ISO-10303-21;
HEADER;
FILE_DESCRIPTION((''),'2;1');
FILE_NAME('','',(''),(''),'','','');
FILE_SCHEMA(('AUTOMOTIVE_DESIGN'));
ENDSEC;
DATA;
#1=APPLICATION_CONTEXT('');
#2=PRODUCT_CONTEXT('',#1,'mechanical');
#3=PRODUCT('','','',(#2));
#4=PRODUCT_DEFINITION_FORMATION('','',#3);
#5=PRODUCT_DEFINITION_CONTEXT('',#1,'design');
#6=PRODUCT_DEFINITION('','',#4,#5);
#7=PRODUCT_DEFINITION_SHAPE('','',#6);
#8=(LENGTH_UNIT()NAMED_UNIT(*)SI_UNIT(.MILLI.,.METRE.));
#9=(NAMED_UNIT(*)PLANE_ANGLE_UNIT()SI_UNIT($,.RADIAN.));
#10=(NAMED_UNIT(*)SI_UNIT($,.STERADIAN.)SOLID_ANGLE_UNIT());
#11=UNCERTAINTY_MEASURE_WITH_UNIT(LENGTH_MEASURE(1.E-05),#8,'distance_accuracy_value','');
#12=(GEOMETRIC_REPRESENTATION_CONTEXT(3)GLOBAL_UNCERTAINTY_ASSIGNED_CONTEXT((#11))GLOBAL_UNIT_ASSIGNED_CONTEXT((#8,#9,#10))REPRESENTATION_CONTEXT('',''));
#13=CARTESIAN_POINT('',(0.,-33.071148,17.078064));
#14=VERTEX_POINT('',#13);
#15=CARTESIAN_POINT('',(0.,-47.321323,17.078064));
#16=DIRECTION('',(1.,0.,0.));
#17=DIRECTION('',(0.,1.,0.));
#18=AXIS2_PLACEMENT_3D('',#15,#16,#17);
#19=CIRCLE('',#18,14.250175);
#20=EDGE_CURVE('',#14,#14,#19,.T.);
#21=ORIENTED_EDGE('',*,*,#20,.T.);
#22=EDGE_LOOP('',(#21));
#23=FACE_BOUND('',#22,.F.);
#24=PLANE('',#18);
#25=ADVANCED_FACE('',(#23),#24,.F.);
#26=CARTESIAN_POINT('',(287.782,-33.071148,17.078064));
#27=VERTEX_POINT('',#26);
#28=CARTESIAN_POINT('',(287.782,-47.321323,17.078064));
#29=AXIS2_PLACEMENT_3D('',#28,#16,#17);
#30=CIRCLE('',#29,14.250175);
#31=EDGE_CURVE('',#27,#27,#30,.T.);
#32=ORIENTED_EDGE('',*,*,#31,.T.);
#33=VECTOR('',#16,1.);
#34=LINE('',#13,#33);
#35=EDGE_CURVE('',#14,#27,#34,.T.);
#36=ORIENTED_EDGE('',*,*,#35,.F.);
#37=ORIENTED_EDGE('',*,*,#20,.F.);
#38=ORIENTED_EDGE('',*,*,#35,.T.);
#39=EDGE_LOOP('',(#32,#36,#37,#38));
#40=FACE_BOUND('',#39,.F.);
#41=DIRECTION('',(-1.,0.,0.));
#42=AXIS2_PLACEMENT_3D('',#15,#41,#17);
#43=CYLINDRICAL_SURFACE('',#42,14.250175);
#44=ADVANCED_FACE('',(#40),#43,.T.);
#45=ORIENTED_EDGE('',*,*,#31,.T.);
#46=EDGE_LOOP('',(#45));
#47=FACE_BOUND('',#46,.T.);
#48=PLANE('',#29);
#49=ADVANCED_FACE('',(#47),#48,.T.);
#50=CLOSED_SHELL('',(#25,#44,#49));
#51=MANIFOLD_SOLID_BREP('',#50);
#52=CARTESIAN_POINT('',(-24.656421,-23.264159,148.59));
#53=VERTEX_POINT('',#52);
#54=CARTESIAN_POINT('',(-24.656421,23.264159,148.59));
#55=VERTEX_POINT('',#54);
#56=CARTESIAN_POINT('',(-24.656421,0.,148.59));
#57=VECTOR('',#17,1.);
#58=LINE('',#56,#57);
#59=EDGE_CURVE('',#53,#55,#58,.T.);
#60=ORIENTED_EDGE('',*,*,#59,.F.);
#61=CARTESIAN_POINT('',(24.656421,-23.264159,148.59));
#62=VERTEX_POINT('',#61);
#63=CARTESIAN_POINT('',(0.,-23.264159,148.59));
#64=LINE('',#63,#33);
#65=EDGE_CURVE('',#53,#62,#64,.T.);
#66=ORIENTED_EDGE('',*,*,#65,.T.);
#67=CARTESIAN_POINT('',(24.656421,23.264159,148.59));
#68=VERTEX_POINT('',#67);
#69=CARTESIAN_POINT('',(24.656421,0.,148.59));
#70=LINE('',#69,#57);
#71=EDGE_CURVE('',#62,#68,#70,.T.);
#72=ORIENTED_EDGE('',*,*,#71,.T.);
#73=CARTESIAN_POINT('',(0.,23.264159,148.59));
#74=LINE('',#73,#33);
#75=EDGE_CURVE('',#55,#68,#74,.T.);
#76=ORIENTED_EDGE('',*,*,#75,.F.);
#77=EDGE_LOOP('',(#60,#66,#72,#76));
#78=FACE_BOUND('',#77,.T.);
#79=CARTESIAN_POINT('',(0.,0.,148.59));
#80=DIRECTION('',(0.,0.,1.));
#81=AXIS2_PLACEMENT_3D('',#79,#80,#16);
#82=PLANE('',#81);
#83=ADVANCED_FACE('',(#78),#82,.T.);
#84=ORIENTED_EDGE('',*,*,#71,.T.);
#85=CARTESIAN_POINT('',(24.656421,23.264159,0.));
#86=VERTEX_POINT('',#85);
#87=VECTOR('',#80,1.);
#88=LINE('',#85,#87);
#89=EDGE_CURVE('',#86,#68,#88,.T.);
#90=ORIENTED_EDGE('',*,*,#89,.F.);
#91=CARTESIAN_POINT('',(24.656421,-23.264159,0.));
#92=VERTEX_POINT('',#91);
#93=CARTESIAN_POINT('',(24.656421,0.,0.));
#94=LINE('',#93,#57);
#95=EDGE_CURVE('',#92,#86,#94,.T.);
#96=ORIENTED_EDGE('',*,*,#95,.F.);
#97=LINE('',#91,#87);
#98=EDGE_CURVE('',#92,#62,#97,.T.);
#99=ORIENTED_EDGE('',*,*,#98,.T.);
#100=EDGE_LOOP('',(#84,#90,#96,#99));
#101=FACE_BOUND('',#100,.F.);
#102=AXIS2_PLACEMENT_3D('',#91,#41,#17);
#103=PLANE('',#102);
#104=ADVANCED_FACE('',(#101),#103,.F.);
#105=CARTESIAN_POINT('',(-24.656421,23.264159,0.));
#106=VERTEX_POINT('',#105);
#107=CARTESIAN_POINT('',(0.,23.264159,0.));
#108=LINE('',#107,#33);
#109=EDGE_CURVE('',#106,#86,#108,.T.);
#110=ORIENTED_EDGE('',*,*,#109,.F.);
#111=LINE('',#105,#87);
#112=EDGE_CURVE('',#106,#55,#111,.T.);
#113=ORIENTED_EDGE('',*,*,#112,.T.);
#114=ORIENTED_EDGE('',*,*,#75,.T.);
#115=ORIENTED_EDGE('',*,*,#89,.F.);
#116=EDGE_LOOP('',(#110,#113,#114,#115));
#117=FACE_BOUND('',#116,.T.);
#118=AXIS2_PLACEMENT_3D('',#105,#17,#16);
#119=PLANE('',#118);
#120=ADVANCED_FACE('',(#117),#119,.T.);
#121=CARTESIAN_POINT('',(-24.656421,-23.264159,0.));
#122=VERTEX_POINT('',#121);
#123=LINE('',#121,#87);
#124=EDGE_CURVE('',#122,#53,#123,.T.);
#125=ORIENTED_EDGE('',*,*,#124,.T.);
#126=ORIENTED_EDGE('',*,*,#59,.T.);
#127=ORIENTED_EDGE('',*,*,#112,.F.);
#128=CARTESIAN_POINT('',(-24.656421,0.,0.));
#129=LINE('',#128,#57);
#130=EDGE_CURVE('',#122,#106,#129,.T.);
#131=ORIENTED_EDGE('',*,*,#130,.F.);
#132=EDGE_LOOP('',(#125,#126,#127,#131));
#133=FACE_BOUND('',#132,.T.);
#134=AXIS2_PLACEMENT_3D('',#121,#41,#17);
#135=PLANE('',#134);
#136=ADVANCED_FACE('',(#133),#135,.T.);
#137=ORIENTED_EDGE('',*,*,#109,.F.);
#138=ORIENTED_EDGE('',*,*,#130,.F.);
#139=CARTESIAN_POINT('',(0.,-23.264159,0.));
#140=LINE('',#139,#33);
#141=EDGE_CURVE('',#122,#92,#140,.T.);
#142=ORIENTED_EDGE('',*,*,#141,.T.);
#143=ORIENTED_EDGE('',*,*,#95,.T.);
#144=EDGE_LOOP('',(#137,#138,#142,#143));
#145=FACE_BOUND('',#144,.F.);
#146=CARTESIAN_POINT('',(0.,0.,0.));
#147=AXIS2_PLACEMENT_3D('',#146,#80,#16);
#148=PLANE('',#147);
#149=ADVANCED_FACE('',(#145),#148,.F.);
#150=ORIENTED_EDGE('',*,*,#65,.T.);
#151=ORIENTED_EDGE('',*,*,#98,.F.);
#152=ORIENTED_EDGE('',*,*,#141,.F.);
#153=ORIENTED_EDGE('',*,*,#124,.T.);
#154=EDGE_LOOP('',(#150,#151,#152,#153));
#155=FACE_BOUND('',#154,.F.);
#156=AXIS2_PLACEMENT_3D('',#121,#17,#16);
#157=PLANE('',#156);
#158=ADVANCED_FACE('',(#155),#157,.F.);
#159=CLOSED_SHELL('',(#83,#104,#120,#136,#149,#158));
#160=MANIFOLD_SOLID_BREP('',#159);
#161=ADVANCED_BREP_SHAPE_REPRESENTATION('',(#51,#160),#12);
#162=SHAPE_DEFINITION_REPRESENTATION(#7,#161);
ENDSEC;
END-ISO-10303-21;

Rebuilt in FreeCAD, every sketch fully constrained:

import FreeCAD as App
import Part
import Sketcher

V = App.Vector

doc = App.newDocument("Part")
params = doc.addObject("Spreadsheet::Sheet", "Params")
for row, (alias, value) in enumerate([
    ("pad1_length", "5.85 in"),
    ("pad2_length", "11.33 in"),
], start=1):
    params.set(f"A{row}", alias)
    params.set(f"B{row}", "=" + value)
    params.setAlias(f"B{row}", alias)

body = doc.addObject("PartDesign::Body", "Body")

# Sketch on XY plane
sketch1 = body.newObject("Sketcher::SketchObject", "Sketch")
sketch1.AttachmentSupport = (doc.getObject("XY_Plane"), [""])
sketch1.MapMode = "FlatFace"
sketch1.addGeometry(Part.LineSegment(V(-25, 23, 0), V(-25, -23, 0)), False)
sketch1.addGeometry(Part.LineSegment(V(-25, -23, 0), V(25, -23, 0)), False)
sketch1.addGeometry(Part.LineSegment(V(25, -23, 0), V(25, 23, 0)), False)
sketch1.addGeometry(Part.LineSegment(V(25, 23, 0), V(-25, 23, 0)), False)
sketch1.addConstraint(Sketcher.Constraint("Coincident", 0, 2, 1, 1))
sketch1.addConstraint(Sketcher.Constraint("Coincident", 1, 2, 2, 1))
sketch1.addConstraint(Sketcher.Constraint("Coincident", 2, 2, 3, 1))
sketch1.addConstraint(Sketcher.Constraint("Coincident", 3, 2, 0, 1))
sketch1.addConstraint(Sketcher.Constraint("Vertical", 0))
sketch1.addConstraint(Sketcher.Constraint("Horizontal", 1))
sketch1.addConstraint(Sketcher.Constraint("Vertical", 2))
sketch1.addConstraint(Sketcher.Constraint("Horizontal", 3))
sketch1.addConstraint(Sketcher.Constraint("Symmetric", 0, 2, 2, 2, -1, 1))
sketch1.addConstraint(Sketcher.Constraint("DistanceX", 1, 1, 1, 2, 49.312842))
sketch1.addConstraint(Sketcher.Constraint("DistanceY", 0, 2, 0, 1, 46.528318))
pad1 = body.newObject("PartDesign::Pad", "Pad")
pad1.Profile = sketch1
pad1.setExpression("Length", "Params.pad1_length")
body2 = doc.addObject("PartDesign::Body", "Body001")

# Sketch on YZ plane
sketch2 = body2.newObject("Sketcher::SketchObject", "Sketch001")
sketch2.AttachmentSupport = (doc.getObject("YZ_Plane001"), [""])
sketch2.MapMode = "FlatFace"
sketch2.addGeometry(Part.Circle(V(-47, 17, 0), V(0, 0, 1), 14), False)
sketch2.addConstraint(Sketcher.Constraint("Diameter", 0, 28.50035))
sketch2.addConstraint(Sketcher.Constraint("DistanceX", 0, 3, -1, 1, 47.321323))
sketch2.addConstraint(Sketcher.Constraint("DistanceY", -1, 1, 0, 3, 17.078064))
pad2 = body2.newObject("PartDesign::Pad", "Pad001")
pad2.Profile = sketch2
pad2.setExpression("Length", "Params.pad2_length")

doc.recompute()
